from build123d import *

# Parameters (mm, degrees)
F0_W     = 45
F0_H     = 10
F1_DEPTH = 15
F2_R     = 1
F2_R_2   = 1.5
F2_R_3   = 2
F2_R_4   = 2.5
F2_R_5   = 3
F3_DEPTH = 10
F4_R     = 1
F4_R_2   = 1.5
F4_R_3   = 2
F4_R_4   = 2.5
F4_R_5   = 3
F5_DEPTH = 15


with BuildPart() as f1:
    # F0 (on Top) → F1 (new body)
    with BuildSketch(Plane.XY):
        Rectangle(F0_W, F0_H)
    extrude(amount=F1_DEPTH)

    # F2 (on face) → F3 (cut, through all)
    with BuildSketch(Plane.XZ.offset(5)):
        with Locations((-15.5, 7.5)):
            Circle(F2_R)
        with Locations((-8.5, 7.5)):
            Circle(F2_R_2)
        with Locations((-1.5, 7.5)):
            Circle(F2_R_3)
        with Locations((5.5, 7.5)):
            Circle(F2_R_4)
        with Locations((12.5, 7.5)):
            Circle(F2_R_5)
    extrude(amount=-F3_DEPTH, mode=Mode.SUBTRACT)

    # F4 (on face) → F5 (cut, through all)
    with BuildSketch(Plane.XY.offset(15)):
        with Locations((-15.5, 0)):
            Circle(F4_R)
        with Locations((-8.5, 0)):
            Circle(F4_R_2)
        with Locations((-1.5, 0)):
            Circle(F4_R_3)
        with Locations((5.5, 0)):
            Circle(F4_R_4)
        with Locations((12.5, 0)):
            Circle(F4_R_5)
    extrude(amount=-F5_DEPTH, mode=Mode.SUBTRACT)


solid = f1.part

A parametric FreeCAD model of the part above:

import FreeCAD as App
import Part
import Sketcher

V = App.Vector

doc = App.newDocument("Part")
body = doc.addObject("PartDesign::Body", "Body")

# Sketch on XY plane
sketch1 = body.newObject("Sketcher::SketchObject", "Sketch")
sketch1.AttachmentSupport = (doc.getObject("XY_Plane"), [""])
sketch1.MapMode = "FlatFace"
sketch1.addGeometry(Part.LineSegment(V(-22.5, 5, 0), V(-22.5, -5, 0)), False)
sketch1.addGeometry(Part.LineSegment(V(-22.5, -5, 0), V(22.5, -5, 0)), False)
sketch1.addGeometry(Part.LineSegment(V(22.5, -5, 0), V(22.5, 5, 0)), False)
sketch1.addGeometry(Part.LineSegment(V(22.5, 5, 0), V(-22.5, 5, 0)), False)
sketch1.addConstraint(Sketcher.Constraint("Coincident", 0, 2, 1, 1))
sketch1.addConstraint(Sketcher.Constraint("Coincident", 1, 2, 2, 1))
sketch1.addConstraint(Sketcher.Constraint("Coincident", 2, 2, 3, 1))
sketch1.addConstraint(Sketcher.Constraint("Coincident", 3, 2, 0, 1))
sketch1.addConstraint(Sketcher.Constraint("Vertical", 0))
sketch1.addConstraint(Sketcher.Constraint("Horizontal", 1))
sketch1.addConstraint(Sketcher.Constraint("Vertical", 2))
sketch1.addConstraint(Sketcher.Constraint("Horizontal", 3))
sketch1.addConstraint(Sketcher.Constraint("Symmetric", 0, 2, 2, 2, -1, 1))
sketch1.addConstraint(Sketcher.Constraint("DistanceX", 1, 1, 1, 2, 45.0))
sketch1.addConstraint(Sketcher.Constraint("DistanceY", 0, 2, 0, 1, 10.0))
pad1 = body.newObject("PartDesign::Pad", "Pad")
pad1.Profile = sketch1
pad1.Length = 15

# Sketch on XZ plane
sketch2 = body.newObject("Sketcher::SketchObject", "Sketch001")
sketch2.AttachmentSupport = (doc.getObject("XZ_Plane"), [""])
sketch2.MapMode = "FlatFace"
sketch2.AttachmentOffset = App.Placement(V(0, 0, 5), App.Rotation())
sketch2.addGeometry(Part.Circle(V(-15.5, 7.5, 0), V(0, 0, 1), 1), False)
sketch2.addGeometry(Part.Circle(V(-8.5, 7.5, 0), V(0, 0, 1), 1.5), False)
sketch2.addGeometry(Part.Circle(V(-1.5, 7.5, 0), V(0, 0, 1), 2), False)
sketch2.addGeometry(Part.Circle(V(5.5, 7.5, 0), V(0, 0, 1), 2.5), False)
sketch2.addGeometry(Part.Circle(V(12.5, 7.5, 0), V(0, 0, 1), 3), False)
sketch2.addConstraint(Sketcher.Constraint("Horizontal", 0, 3, 1, 3))
sketch2.addConstraint(Sketcher.Constraint("Horizontal", 1, 3, 2, 3))
sketch2.addConstraint(Sketcher.Constraint("Horizontal", 2, 3, 3, 3))
sketch2.addConstraint(Sketcher.Constraint("Horizontal", 3, 3, 4, 3))
sketch2.addConstraint(Sketcher.Constraint("Diameter", 0, 2.0))
sketch2.addConstraint(Sketcher.Constraint("Diameter", 1, 3.0))
sketch2.addConstraint(Sketcher.Constraint("Diameter", 2, 4.0))
sketch2.addConstraint(Sketcher.Constraint("Diameter", 3, 5.0))
sketch2.addConstraint(Sketcher.Constraint("Diameter", 4, 6.0))
sketch2.addConstraint(Sketcher.Constraint("DistanceX", 0, 3, 1, 3, 7.0))
sketch2.addConstraint(Sketcher.Constraint("DistanceX", 1, 3, 2, 3, 7.0))
sketch2.addConstraint(Sketcher.Constraint("DistanceX", 2, 3, 3, 3, 7.0))
sketch2.addConstraint(Sketcher.Constraint("DistanceX", 3, 3, 4, 3, 7.0))
sketch2.addConstraint(Sketcher.Constraint("DistanceX", 0, 3, -1, 1, 15.5))
sketch2.addConstraint(Sketcher.Constraint("DistanceY", -1, 1, 0, 3, 7.5))
pocket1 = body.newObject("PartDesign::Pocket", "Pocket")
pocket1.Profile = sketch2
pocket1.Type = "ThroughAll"

# Sketch on XY plane
sketch3 = body.newObject("Sketcher::SketchObject", "Sketch002")
sketch3.AttachmentSupport = (doc.getObject("XY_Plane"), [""])
sketch3.MapMode = "FlatFace"
sketch3.AttachmentOffset = App.Placement(V(0, 0, 15), App.Rotation())
sketch3.addGeometry(Part.Circle(V(-15.5, 0, 0), V(0, 0, 1), 1), False)
sketch3.addGeometry(Part.Circle(V(-8.5, 0, 0), V(0, 0, 1), 1.5), False)
sketch3.addGeometry(Part.Circle(V(-1.5, 0, 0), V(0, 0, 1), 2), False)
sketch3.addGeometry(Part.Circle(V(5.5, 0, 0), V(0, 0, 1), 2.5), False)
sketch3.addGeometry(Part.Circle(V(12.5, 0, 0), V(0, 0, 1), 3), False)
sketch3.addConstraint(Sketcher.Constraint("PointOnObject", 0, 3, -1))
sketch3.addConstraint(Sketcher.Constraint("PointOnObject", 1, 3, -1))
sketch3.addConstraint(Sketcher.Constraint("PointOnObject", 2, 3, -1))
sketch3.addConstraint(Sketcher.Constraint("PointOnObject", 3, 3, -1))
sketch3.addConstraint(Sketcher.Constraint("PointOnObject", 4, 3, -1))
sketch3.addConstraint(Sketcher.Constraint("Diameter", 0, 2.0))
sketch3.addConstraint(Sketcher.Constraint("Diameter", 1, 3.0))
sketch3.addConstraint(Sketcher.Constraint("Diameter", 2, 4.0))
sketch3.addConstraint(Sketcher.Constraint("Diameter", 3, 5.0))
sketch3.addConstraint(Sketcher.Constraint("Diameter", 4, 6.0))
sketch3.addConstraint(Sketcher.Constraint("DistanceX", 0, 3, 1, 3, 7.0))
sketch3.addConstraint(Sketcher.Constraint("DistanceX", 1, 3, 2, 3, 7.0))
sketch3.addConstraint(Sketcher.Constraint("DistanceX", 2, 3, 3, 3, 7.0))
sketch3.addConstraint(Sketcher.Constraint("DistanceX", 3, 3, 4, 3, 7.0))
sketch3.addConstraint(Sketcher.Constraint("DistanceX", 0, 3, -1, 1, 15.5))
pocket2 = body.newObject("PartDesign::Pocket", "Pocket001")
pocket2.Profile = sketch3
pocket2.Type = "ThroughAll"

doc.recompute()
